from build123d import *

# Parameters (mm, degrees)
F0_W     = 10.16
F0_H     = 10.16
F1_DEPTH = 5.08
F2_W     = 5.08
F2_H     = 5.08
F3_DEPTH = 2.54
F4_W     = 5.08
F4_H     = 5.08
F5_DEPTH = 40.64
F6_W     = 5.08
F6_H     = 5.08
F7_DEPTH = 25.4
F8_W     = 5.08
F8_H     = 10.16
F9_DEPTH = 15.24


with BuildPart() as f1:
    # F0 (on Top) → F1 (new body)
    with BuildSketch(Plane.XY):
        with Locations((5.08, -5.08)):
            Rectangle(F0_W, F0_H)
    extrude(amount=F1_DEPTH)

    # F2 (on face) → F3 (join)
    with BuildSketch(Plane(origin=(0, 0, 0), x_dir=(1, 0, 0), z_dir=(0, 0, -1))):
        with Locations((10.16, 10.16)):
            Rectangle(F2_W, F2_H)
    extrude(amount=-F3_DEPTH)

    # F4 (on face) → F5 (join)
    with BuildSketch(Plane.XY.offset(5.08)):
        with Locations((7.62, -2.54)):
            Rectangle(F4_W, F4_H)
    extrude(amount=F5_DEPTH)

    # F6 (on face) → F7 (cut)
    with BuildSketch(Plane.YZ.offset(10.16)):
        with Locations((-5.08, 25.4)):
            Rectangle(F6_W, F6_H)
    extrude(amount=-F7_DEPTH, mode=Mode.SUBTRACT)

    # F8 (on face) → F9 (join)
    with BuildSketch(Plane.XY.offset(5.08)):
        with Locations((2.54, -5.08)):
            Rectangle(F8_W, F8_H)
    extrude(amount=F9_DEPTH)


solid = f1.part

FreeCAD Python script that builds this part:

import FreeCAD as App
import Part
import Sketcher

V = App.Vector
Q = App.Units.Quantity

doc = App.newDocument("Part")
body = doc.addObject("PartDesign::Body", "Body")

sketch1 = body.newObject("Sketcher::SketchObject", "Sketch")
sketch1.AttachmentSupport = (doc.getObject("XY_Plane"), [""])
sketch1.MapMode = "FlatFace"
sketch1.addGeometry(Part.LineSegment(V(0, 0, 0), V(0, -10, 0)), False)
sketch1.addGeometry(Part.LineSegment(V(0, -10, 0), V(10, -10, 0)), False)
sketch1.addGeometry(Part.LineSegment(V(10, -10, 0), V(10, 0, 0)), False)
sketch1.addGeometry(Part.LineSegment(V(10, 0, 0), V(0, 0, 0)), False)
sketch1.addConstraint(Sketcher.Constraint("Coincident", 0, 2, 1, 1))
sketch1.addConstraint(Sketcher.Constraint("Coincident", 1, 2, 2, 1))
sketch1.addConstraint(Sketcher.Constraint("Coincident", 2, 2, 3, 1))
sketch1.addConstraint(Sketcher.Constraint("Coincident", 3, 2, 0, 1))
sketch1.addConstraint(Sketcher.Constraint("Vertical", 0))
sketch1.addConstraint(Sketcher.Constraint("Horizontal", 1))
sketch1.addConstraint(Sketcher.Constraint("Vertical", 2))
sketch1.addConstraint(Sketcher.Constraint("Horizontal", 3))
sketch1.addConstraint(Sketcher.Constraint("Coincident", 3, 2, -1, 1))
sketch1.addConstraint(Sketcher.Constraint("Equal", 3, 0))
sketch1.addConstraint(Sketcher.Constraint("DistanceX", 1, 1, 1, 2, Q("0.4 in")))
pad1 = body.newObject("PartDesign::Pad", "Pad")
pad1.Profile = sketch1
pad1.Length = Q("0.2 in")

sketch2 = body.newObject("Sketcher::SketchObject", "Sketch001")
sketch2.AttachmentSupport = (doc.getObject("XY_Plane"), [""])
sketch2.MapMode = "FlatFace"
sketch2.addGeometry(Part.LineSegment(V(8, -13, 0), V(8, -8, 0)), False)
sketch2.addGeometry(Part.LineSegment(V(8, -8, 0), V(13, -8, 0)), False)
sketch2.addGeometry(Part.LineSegment(V(13, -8, 0), V(13, -13, 0)), False)
sketch2.addGeometry(Part.LineSegment(V(13, -13, 0), V(8, -13, 0)), False)
sketch2.addConstraint(Sketcher.Constraint("Coincident", 0, 2, 1, 1))
sketch2.addConstraint(Sketcher.Constraint("Coincident", 1, 2, 2, 1))
sketch2.addConstraint(Sketcher.Constraint("Coincident", 2, 2, 3, 1))
sketch2.addConstraint(Sketcher.Constraint("Coincident", 3, 2, 0, 1))
sketch2.addConstraint(Sketcher.Constraint("Vertical", 0))
sketch2.addConstraint(Sketcher.Constraint("Horizontal", 1))
sketch2.addConstraint(Sketcher.Constraint("Vertical", 2))
sketch2.addConstraint(Sketcher.Constraint("Horizontal", 3))
sketch2.addConstraint(Sketcher.Constraint("Equal", 3, 0))
sketch2.addConstraint(Sketcher.Constraint("DistanceX", 1, 1, 1, 2, Q("0.2 in")))
sketch2.addConstraint(Sketcher.Constraint("DistanceX", -1, 1, 0, 2, Q("0.3 in")))
sketch2.addConstraint(Sketcher.Constraint("DistanceY", 0, 2, -1, 1, Q("0.3 in")))
pad2 = body.newObject("PartDesign::Pad", "Pad001")
pad2.Profile = sketch2
pad2.Length = Q("0.1 in")

sketch3 = body.newObject("Sketcher::SketchObject", "Sketch002")
sketch3.AttachmentSupport = (doc.getObject("XY_Plane"), [""])
sketch3.MapMode = "FlatFace"
sketch3.AttachmentOffset = App.Placement(V(0, 0, 0.2 * 25.4), App.Rotation())
sketch3.addGeometry(Part.LineSegment(V(5, 0, 0), V(5, -5, 0)), False)
sketch3.addGeometry(Part.LineSegment(V(5, -5, 0), V(10, -5, 0)), False)
sketch3.addGeometry(Part.LineSegment(V(10, -5, 0), V(10, 0, 0)), False)
sketch3.addGeometry(Part.LineSegment(V(10, 0, 0), V(5, 0, 0)), False)
sketch3.addConstraint(Sketcher.Constraint("Coincident", 0, 2, 1, 1))
sketch3.addConstraint(Sketcher.Constraint("Coincident", 1, 2, 2, 1))
sketch3.addConstraint(Sketcher.Constraint("Coincident", 2, 2, 3, 1))
sketch3.addConstraint(Sketcher.Constraint("Coincident", 3, 2, 0, 1))
sketch3.addConstraint(Sketcher.Constraint("Vertical", 0))
sketch3.addConstraint(Sketcher.Constraint("Horizontal", 1))
sketch3.addConstraint(Sketcher.Constraint("Vertical", 2))
sketch3.addConstraint(Sketcher.Constraint("Horizontal", 3))
sketch3.addConstraint(Sketcher.Constraint("PointOnObject", 2, 2, -1))
sketch3.addConstraint(Sketcher.Constraint("Equal", 3, 0))
sketch3.addConstraint(Sketcher.Constraint("DistanceX", 1, 1, 1, 2, Q("0.2 in")))
sketch3.addConstraint(Sketcher.Constraint("DistanceX", -1, 1, 0, 2, Q("0.2 in")))
pad3 = body.newObject("PartDesign::Pad", "Pad002")
pad3.Profile = sketch3
pad3.Length = Q("1.6 in")

sketch4 = body.newObject("Sketcher::SketchObject", "Sketch003")
sketch4.AttachmentSupport = (doc.getObject("YZ_Plane"), [""])
sketch4.MapMode = "FlatFace"
sketch4.AttachmentOffset = App.Placement(V(0, 0, 0.4 * 25.4), App.Rotation())
sketch4.addGeometry(Part.LineSegment(V(-8, 28, 0), V(-8, 23, 0)), False)
sketch4.addGeometry(Part.LineSegment(V(-8, 23, 0), V(-3, 23, 0)), False)
sketch4.addGeometry(Part.LineSegment(V(-3, 23, 0), V(-3, 28, 0)), False)
sketch4.addGeometry(Part.LineSegment(V(-3, 28, 0), V(-8, 28, 0)), False)
sketch4.addConstraint(Sketcher.Constraint("Coincident", 0, 2, 1, 1))
sketch4.addConstraint(Sketcher.Constraint("Coincident", 1, 2, 2, 1))
sketch4.addConstraint(Sketcher.Constraint("Coincident", 2, 2, 3, 1))
sketch4.addConstraint(Sketcher.Constraint("Coincident", 3, 2, 0, 1))
sketch4.addConstraint(Sketcher.Constraint("Vertical", 0))
sketch4.addConstraint(Sketcher.Constraint("Horizontal", 1))
sketch4.addConstraint(Sketcher.Constraint("Vertical", 2))
sketch4.addConstraint(Sketcher.Constraint("Horizontal", 3))
sketch4.addConstraint(Sketcher.Constraint("Equal", 3, 0))
sketch4.addConstraint(Sketcher.Constraint("DistanceX", 1, 1, 1, 2, Q("0.2 in")))
sketch4.addConstraint(Sketcher.Constraint("DistanceX", 0, 2, -1, 1, Q("0.3 in")))
sketch4.addConstraint(Sketcher.Constraint("DistanceY", -1, 1, 0, 2, Q("0.9 in")))
pocket1 = body.newObject("PartDesign::Pocket", "Pocket")
pocket1.Profile = sketch4
pocket1.Length = Q("1 in")

sketch5 = body.newObject("Sketcher::SketchObject", "Sketch004")
sketch5.AttachmentSupport = (doc.getObject("XY_Plane"), [""])
sketch5.MapMode = "FlatFace"
sketch5.AttachmentOffset = App.Placement(V(0, 0, 0.2 * 25.4), App.Rotation())
sketch5.addGeometry(Part.LineSegment(V(0, 0, 0), V(0, -10, 0)), False)
sketch5.addGeometry(Part.LineSegment(V(0, -10, 0), V(5, -10, 0)), False)
sketch5.addGeometry(Part.LineSegment(V(5, -10, 0), V(5, 0, 0)), False)
sketch5.addGeometry(Part.LineSegment(V(5, 0, 0), V(0, 0, 0)), False)
sketch5.addConstraint(Sketcher.Constraint("Coincident", 0, 2, 1, 1))
sketch5.addConstraint(Sketcher.Constraint("Coincident", 1, 2, 2, 1))
sketch5.addConstraint(Sketcher.Constraint("Coincident", 2, 2, 3, 1))
sketch5.addConstraint(Sketcher.Constraint("Coincident", 3, 2, 0, 1))
sketch5.addConstraint(Sketcher.Constraint("Vertical", 0))
sketch5.addConstraint(Sketcher.Constraint("Horizontal", 1))
sketch5.addConstraint(Sketcher.Constraint("Vertical", 2))
sketch5.addConstraint(Sketcher.Constraint("Horizontal", 3))
sketch5.addConstraint(Sketcher.Constraint("Coincident", 3, 2, -1, 1))
sketch5.addConstraint(Sketcher.Constraint("DistanceX", 1, 1, 1, 2, Q("0.2 in")))
sketch5.addConstraint(Sketcher.Constraint("DistanceY", 0, 2, 0, 1, Q("0.4 in")))
pad4 = body.newObject("PartDesign::Pad", "Pad003")
pad4.Profile = sketch5
pad4.Length = Q("0.6 in")

doc.recompute()
